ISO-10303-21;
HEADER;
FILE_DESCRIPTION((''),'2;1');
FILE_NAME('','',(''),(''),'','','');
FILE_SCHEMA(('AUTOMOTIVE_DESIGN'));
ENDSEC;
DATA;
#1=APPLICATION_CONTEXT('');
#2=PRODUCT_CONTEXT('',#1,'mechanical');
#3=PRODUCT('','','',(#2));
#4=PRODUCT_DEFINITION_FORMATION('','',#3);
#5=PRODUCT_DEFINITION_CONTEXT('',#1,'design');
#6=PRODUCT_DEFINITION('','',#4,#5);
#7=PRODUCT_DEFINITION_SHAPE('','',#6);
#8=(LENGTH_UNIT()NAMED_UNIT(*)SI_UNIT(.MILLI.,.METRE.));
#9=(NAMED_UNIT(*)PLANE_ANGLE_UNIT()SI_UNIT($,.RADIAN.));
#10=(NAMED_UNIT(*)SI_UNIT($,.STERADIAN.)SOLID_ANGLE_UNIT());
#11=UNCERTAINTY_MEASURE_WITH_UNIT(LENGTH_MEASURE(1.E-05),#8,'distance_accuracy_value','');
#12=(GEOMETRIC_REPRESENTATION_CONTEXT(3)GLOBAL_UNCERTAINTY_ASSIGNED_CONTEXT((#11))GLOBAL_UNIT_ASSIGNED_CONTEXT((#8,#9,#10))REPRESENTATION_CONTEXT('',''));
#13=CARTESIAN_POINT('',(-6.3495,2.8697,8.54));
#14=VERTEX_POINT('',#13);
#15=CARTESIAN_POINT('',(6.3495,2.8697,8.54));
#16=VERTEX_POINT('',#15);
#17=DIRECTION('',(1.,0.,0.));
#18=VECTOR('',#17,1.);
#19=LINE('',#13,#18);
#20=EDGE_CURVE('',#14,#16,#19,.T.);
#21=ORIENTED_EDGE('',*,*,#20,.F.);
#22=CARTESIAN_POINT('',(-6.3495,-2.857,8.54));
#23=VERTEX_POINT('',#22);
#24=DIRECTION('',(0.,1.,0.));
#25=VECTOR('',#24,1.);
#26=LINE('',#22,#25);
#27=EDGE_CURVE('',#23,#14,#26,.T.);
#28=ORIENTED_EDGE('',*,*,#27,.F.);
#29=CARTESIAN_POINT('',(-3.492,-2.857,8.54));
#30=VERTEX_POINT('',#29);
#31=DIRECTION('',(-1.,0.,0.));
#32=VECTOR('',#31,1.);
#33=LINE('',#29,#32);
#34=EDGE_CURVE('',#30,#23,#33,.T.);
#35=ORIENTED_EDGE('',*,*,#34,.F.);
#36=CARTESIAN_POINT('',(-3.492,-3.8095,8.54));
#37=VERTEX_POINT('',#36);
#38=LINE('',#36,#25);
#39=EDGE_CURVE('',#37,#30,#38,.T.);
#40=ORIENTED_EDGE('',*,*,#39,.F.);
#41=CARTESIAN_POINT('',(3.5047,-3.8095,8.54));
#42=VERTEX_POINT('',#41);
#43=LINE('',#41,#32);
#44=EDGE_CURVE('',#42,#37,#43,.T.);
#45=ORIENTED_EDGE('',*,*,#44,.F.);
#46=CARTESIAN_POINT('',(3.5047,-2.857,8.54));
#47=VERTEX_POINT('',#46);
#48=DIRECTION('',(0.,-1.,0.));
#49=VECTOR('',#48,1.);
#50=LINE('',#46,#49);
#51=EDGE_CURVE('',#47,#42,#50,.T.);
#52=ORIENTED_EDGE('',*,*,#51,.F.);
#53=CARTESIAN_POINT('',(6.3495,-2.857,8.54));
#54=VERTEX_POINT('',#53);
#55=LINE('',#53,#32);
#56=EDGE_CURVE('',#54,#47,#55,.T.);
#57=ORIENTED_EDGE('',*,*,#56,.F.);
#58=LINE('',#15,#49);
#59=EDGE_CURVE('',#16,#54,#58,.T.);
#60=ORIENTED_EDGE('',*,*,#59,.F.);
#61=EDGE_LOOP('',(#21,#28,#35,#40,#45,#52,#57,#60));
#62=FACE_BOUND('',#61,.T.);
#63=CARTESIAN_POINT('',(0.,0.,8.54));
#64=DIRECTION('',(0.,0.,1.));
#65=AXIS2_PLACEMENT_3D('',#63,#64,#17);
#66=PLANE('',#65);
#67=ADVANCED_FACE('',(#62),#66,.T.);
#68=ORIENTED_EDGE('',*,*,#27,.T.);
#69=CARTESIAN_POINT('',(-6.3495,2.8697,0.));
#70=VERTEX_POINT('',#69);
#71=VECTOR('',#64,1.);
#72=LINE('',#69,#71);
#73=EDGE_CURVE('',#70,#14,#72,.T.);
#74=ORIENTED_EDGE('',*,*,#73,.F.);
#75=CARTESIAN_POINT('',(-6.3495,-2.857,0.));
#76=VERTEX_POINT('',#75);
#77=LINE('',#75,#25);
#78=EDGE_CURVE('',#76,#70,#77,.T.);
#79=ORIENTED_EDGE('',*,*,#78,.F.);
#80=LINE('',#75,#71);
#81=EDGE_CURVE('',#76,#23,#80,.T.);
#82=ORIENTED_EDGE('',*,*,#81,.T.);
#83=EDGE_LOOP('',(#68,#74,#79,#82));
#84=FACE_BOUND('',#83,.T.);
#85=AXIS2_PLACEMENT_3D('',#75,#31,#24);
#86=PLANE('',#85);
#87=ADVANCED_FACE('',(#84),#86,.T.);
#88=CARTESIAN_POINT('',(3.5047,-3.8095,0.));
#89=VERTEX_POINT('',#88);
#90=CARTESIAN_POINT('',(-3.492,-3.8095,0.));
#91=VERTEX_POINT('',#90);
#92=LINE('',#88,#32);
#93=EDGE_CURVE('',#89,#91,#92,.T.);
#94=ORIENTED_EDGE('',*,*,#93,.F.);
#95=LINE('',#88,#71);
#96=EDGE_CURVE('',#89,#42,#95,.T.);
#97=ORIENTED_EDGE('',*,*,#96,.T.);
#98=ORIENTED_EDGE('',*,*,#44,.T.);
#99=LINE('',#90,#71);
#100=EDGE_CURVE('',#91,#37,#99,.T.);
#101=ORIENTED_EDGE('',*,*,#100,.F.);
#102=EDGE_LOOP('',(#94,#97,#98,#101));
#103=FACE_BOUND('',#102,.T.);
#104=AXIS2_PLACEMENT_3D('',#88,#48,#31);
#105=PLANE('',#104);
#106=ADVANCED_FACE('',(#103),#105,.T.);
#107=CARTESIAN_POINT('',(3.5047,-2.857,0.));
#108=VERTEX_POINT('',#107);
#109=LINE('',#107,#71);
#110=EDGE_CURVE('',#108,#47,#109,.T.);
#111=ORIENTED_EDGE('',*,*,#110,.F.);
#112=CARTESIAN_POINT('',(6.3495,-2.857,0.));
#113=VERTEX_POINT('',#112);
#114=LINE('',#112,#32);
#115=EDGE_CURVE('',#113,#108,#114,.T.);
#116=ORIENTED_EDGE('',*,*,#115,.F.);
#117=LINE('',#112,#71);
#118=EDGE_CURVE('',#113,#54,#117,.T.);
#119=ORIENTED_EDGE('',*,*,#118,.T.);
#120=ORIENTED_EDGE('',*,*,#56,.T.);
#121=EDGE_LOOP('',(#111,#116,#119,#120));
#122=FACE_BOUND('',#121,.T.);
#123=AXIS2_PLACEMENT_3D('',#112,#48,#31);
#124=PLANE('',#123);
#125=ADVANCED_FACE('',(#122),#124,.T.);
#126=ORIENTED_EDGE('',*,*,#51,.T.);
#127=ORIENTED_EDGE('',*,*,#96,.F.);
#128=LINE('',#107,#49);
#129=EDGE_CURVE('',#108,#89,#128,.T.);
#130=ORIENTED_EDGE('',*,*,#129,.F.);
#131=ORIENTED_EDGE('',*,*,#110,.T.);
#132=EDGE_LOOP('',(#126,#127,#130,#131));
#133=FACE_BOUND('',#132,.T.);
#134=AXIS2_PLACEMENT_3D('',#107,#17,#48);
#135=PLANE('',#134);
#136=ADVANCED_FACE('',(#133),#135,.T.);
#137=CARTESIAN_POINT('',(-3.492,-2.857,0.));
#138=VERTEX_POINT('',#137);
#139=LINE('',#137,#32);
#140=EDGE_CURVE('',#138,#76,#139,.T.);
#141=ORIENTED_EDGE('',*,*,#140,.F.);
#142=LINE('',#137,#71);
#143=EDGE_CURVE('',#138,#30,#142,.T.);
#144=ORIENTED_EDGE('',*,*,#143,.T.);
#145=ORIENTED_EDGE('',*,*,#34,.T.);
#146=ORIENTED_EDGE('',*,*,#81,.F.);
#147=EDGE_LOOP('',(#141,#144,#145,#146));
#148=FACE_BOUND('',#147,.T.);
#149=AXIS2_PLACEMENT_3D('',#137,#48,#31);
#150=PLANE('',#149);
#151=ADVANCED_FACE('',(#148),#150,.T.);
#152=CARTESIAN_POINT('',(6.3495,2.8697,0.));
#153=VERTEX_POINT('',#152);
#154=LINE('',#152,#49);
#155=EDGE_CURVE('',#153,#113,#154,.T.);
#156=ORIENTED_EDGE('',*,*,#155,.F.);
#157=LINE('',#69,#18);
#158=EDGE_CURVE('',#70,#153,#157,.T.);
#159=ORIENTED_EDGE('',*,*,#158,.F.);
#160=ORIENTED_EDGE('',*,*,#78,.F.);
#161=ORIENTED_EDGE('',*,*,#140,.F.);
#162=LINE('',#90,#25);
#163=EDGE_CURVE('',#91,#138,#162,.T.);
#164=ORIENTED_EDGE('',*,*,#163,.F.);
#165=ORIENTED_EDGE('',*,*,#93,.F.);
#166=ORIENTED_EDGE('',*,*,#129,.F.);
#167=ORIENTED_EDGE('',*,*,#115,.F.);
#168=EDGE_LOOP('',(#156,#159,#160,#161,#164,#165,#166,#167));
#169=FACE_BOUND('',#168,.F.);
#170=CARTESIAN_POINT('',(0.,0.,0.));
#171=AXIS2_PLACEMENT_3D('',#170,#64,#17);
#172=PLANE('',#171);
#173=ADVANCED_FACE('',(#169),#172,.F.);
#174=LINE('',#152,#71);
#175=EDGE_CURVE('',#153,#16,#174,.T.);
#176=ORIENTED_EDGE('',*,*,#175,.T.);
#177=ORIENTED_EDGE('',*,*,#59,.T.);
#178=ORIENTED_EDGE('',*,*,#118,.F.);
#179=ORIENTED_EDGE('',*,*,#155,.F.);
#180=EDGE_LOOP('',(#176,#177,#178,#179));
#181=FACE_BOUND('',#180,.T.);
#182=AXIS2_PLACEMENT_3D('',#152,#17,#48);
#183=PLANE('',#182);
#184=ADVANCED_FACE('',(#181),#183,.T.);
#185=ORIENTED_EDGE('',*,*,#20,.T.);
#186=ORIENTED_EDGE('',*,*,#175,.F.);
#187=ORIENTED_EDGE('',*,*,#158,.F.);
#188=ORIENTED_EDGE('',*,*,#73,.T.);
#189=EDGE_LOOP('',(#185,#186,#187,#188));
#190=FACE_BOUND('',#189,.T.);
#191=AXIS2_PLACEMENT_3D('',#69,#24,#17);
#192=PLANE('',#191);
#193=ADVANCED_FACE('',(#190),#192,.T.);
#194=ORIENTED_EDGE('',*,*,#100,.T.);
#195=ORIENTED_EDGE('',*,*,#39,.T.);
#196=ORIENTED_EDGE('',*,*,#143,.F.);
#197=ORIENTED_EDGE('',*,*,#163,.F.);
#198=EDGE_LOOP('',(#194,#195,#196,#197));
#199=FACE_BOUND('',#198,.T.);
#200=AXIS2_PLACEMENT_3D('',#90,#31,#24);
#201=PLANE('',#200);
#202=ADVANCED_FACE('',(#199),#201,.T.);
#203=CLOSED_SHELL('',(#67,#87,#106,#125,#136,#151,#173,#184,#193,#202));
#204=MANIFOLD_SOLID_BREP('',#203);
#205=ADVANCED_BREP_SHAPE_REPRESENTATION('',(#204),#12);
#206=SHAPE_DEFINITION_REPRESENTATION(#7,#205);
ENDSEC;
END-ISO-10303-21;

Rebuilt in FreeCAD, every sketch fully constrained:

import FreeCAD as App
import Part
import Sketcher
Q = App.Units.Quantity

doc = App.newDocument("Part")
body = doc.addObject("PartDesign::Body", "Body")

# Sketch on XY plane
sketch1 = body.newObject("Sketcher::SketchObject", "Sketch")
sketch1.AttachmentSupport = (doc.getObject("XY_Plane"), [""])
sketch1.MapMode = "FlatFace"
sketch1.addGeometry([
    Part.LineSegment(App.Vector(-6.3, -2.9, 0), App.Vector(-3.5, -2.9, 0)),  # 0
    Part.LineSegment(App.Vector(-3.5, -2.9, 0), App.Vector(-3.5, -3.8, 0)),  # 1
    Part.LineSegment(App.Vector(-3.5, -3.8, 0), App.Vector(3.5, -3.8, 0)),  # 2
    Part.LineSegment(App.Vector(3.5, -3.8, 0), App.Vector(3.5, -2.9, 0)),  # 3
    Part.LineSegment(App.Vector(3.5, -2.9, 0), App.Vector(6.3, -2.9, 0)),  # 4
    Part.LineSegment(App.Vector(6.3, -2.9, 0), App.Vector(6.3, 2.9, 0)),  # 5
    Part.LineSegment(App.Vector(6.3, 2.9, 0), App.Vector(-6.3, 2.9, 0)),  # 6
    Part.LineSegment(App.Vector(-6.3, 2.9, 0), App.Vector(-6.3, -2.9, 0)),  # 7
], False)
sketch1.addConstraint([
    Sketcher.Constraint("Coincident", 0, 2, 1, 1),
    Sketcher.Constraint("Coincident", 1, 2, 2, 1),
    Sketcher.Constraint("Coincident", 2, 2, 3, 1),
    Sketcher.Constraint("Coincident", 3, 2, 4, 1),
    Sketcher.Constraint("Coincident", 4, 2, 5, 1),
    Sketcher.Constraint("Coincident", 5, 2, 6, 1),
    Sketcher.Constraint("Coincident", 6, 2, 7, 1),
    Sketcher.Constraint("Coincident", 7, 2, 0, 1),
    Sketcher.Constraint("Horizontal", 0),
    Sketcher.Constraint("Vertical", 1),
    Sketcher.Constraint("Horizontal", 2),
    Sketcher.Constraint("Vertical", 3),
    Sketcher.Constraint("Horizontal", 4),
    Sketcher.Constraint("Vertical", 5),
    Sketcher.Constraint("Horizontal", 6),
    Sketcher.Constraint("Vertical", 7),
    Sketcher.Constraint("Symmetric", 4, 2, 7, 2, -2),
    Sketcher.Constraint("DistanceX", 4, 1, 4, 2, Q("0.112 in")),
    Sketcher.Constraint("DistanceX", 0, 1, 0, 2, Q("0.1125 in")),
    Sketcher.Constraint("DistanceY", 1, 2, 1, 1, Q("0.0375 in")),
    Sketcher.Constraint("DistanceX", 2, 1, 2, 2, Q("6.9967 mm")),
    Sketcher.Constraint("DistanceY", 5, 1, 5, 2, Q("5.7267 mm")),
    Sketcher.Constraint("DistanceY", 0, 2, -1, 1, Q("2.857 mm")),
])
pad1 = body.newObject("PartDesign::Pad", "Pad")
pad1.Profile = sketch1
pad1.Length = 8.54

doc.recompute()
